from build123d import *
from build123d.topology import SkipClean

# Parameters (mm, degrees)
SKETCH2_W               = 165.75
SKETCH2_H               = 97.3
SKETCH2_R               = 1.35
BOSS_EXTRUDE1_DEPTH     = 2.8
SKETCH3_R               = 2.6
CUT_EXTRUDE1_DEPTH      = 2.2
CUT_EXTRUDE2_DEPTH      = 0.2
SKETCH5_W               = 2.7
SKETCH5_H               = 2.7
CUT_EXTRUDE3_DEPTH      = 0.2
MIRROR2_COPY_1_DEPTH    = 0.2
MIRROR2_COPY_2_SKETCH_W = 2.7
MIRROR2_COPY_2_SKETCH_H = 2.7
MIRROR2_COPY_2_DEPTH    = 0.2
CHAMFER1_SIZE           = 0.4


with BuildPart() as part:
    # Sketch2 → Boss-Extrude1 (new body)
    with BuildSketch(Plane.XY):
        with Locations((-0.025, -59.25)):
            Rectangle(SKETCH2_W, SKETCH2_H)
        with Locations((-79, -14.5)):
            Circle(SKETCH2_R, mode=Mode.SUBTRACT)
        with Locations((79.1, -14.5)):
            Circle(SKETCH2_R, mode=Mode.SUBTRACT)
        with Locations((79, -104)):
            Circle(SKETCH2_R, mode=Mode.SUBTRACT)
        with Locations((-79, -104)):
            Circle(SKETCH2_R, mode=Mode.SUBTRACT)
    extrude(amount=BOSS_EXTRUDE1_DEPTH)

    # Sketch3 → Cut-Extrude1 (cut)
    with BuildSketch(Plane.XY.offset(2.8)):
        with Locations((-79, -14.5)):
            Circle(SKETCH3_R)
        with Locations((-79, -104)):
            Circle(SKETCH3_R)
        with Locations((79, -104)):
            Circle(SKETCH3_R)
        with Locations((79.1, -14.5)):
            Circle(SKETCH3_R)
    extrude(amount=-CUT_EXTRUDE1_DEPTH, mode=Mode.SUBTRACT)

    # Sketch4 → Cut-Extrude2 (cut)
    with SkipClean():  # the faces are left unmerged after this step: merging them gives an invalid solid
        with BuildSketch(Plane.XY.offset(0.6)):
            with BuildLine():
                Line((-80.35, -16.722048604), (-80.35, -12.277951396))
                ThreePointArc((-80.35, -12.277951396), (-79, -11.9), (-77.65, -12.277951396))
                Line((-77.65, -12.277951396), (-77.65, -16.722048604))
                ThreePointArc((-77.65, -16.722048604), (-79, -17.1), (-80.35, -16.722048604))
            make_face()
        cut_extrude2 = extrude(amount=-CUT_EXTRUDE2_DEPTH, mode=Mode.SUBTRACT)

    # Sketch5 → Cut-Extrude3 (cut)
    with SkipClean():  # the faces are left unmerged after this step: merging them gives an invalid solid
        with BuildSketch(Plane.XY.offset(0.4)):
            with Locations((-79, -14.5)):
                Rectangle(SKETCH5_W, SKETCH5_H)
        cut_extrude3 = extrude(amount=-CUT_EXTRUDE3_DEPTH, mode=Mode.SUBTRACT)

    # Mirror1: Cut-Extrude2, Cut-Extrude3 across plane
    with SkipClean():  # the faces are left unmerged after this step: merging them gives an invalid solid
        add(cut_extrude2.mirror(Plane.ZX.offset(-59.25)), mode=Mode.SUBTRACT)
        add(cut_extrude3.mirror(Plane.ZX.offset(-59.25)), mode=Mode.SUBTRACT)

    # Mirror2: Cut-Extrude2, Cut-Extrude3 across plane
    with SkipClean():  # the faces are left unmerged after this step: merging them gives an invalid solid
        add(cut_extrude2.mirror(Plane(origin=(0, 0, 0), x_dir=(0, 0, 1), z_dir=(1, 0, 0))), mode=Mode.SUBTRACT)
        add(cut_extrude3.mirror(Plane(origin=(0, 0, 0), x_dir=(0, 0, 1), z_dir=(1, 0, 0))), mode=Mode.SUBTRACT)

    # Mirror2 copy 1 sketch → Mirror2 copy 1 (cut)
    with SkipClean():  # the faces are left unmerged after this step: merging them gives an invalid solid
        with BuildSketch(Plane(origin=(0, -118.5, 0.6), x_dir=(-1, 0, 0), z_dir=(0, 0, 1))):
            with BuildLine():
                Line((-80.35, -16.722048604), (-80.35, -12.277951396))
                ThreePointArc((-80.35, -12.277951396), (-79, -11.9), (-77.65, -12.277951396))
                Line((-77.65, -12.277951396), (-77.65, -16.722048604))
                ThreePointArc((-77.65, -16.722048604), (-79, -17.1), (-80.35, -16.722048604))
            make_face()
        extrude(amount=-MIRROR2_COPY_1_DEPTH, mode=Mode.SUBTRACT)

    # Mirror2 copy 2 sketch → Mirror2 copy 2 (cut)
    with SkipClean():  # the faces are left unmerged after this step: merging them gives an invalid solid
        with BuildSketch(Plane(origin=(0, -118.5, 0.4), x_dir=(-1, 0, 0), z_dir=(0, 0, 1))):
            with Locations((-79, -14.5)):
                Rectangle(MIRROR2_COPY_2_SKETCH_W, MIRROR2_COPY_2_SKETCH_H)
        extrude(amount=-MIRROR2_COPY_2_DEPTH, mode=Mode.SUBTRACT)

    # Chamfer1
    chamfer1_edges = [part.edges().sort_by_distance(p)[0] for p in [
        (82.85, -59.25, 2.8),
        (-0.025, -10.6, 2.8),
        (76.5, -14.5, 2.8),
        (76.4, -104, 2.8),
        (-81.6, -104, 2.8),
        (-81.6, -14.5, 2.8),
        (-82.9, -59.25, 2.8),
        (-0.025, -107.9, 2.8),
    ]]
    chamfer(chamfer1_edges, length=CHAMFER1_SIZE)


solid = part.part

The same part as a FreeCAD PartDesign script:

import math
import FreeCAD as App
import Part
import Sketcher

V = App.Vector
Q = App.Units.Quantity


def edges_at(feature, points):
    """Names of the edges that pass closest to the given points."""
    edges = feature.Shape.Edges
    near = lambda p: min(range(len(edges)), key=lambda i: edges[i].distToShape(Part.Vertex(*p))[0])
    return sorted({f"Edge{near(p) + 1}" for p in points})

doc = App.newDocument("Part")
params = doc.addObject("Spreadsheet::Sheet", "Params")
for row, (alias, value) in enumerate([
    ("sketch1_diameter", "2.7 mm"),
    ("sketch1_height", "97.3 mm"),
    ("sketch1_width", "165.75 mm"),
    ("pad1_length", "2.8 mm"),
    ("sketch2_diameter", "5.2 mm"),
    ("pocket1_length", "2.2 mm"),
    ("sketch3_radius", "2.6 mm"),
    ("pocket2_length", "0.2 mm"),
    ("sketch4_width", "2.7 mm"),
    ("pocket3_length", "0.2 mm"),
    ("sketch5_radius", "2.6 mm"),
    ("pocket4_length", "0.2 mm"),
    ("sketch6_width", "2.7 mm"),
    ("pocket5_length", "0.2 mm"),
    ("chamfer_size", "0.4 mm"),
], start=1):
    params.set(f"A{row}", alias)
    params.set(f"B{row}", "=" + value)
    params.setAlias(f"B{row}", alias)

body = doc.addObject("PartDesign::Body", "Body")

# Sketch on XY plane
sketch1 = body.newObject("Sketcher::SketchObject", "Sketch")
sketch1.AttachmentSupport = (doc.getObject("XY_Plane"), [""])
sketch1.MapMode = "FlatFace"
sketch1.addGeometry([
    Part.LineSegment(V(-82.9, -10.6, 0), V(-82.9, -107.9, 0)),  # 0
    Part.LineSegment(V(-82.9, -107.9, 0), V(82.8, -107.9, 0)),  # 1
    Part.LineSegment(V(82.8, -107.9, 0), V(82.8, -10.6, 0)),  # 2
    Part.LineSegment(V(82.8, -10.6, 0), V(-82.9, -10.6, 0)),  # 3
    Part.Circle(V(-79, -104, 0), V(0, 0, 1), 1.4),  # 4
    Part.Circle(V(79, -104, 0), V(0, 0, 1), 1.4),  # 5
    Part.Circle(V(-79, -14.5, 0), V(0, 0, 1), 1.4),  # 6
    Part.Circle(V(79.1, -14.5, 0), V(0, 0, 1), 1.4),  # 7
], False)
sketch1.addConstraint([
    Sketcher.Constraint("Coincident", 0, 2, 1, 1),
    Sketcher.Constraint("Coincident", 1, 2, 2, 1),
    Sketcher.Constraint("Coincident", 2, 2, 3, 1),
    Sketcher.Constraint("Coincident", 3, 2, 0, 1),
    Sketcher.Constraint("Vertical", 0),
    Sketcher.Constraint("Horizontal", 1),
    Sketcher.Constraint("Vertical", 2),
    Sketcher.Constraint("Horizontal", 3),
    Sketcher.Constraint("Equal", 4, 5),
    Sketcher.Constraint("Equal", 5, 6),
    Sketcher.Constraint("Equal", 6, 7),
    Sketcher.Constraint("Symmetric", 4, 3, 5, 3, -2),
    Sketcher.Constraint("Horizontal", 6, 3, 7, 3),
    Sketcher.Constraint("Vertical", 4, 3, 6, 3),
    Sketcher.Constraint("Diameter", 4, Q("2.7 mm")),
    Sketcher.Constraint("DistanceY", 0, 2, 0, 1, Q("97.3 mm")),
    Sketcher.Constraint("DistanceX", 4, 3, -1, 1, Q("79 mm")),
    Sketcher.Constraint("DistanceY", 4, 3, -1, 1, Q("104 mm")),
    Sketcher.Constraint("DistanceX", 0, 2, 7, 3, Q("162 mm")),
    Sketcher.Constraint("DistanceX", 1, 1, 1, 2, Q("165.75 mm")),
    Sketcher.Constraint("DistanceY", 6, 3, -1, 1, Q("14.5 mm")),
    Sketcher.Constraint("DistanceX", -1, 1, 7, 3, Q("79.1 mm")),
    Sketcher.Constraint("DistanceY", 0, 2, -1, 1, Q("107.9 mm")),
])
sketch1.setExpression("Constraints[14]", "Params.sketch1_diameter")
sketch1.setExpression("Constraints[15]", "Params.sketch1_height")
sketch1.setExpression("Constraints[19]", "Params.sketch1_width")
pad1 = body.newObject("PartDesign::Pad", "Pad")
pad1.Profile = sketch1
pad1.setExpression("Length", "Params.pad1_length")

# Sketch on XY plane
sketch2 = body.newObject("Sketcher::SketchObject", "Sketch001")
sketch2.AttachmentSupport = (doc.getObject("XY_Plane"), [""])
sketch2.MapMode = "FlatFace"
sketch2.AttachmentOffset = App.Placement(V(0, 0, 2.8), App.Rotation())
sketch2.addGeometry([
    Part.Circle(V(-79, -14.5, 0), V(0, 0, 1), 2.6),
    Part.Circle(V(-79, -104, 0), V(0, 0, 1), 2.6),
    Part.Circle(V(79, -104, 0), V(0, 0, 1), 2.6),
    Part.Circle(V(79.1, -14.5, 0), V(0, 0, 1), 2.6),
], False)
sketch2.addConstraint([
    Sketcher.Constraint("Equal", 0, 1),
    Sketcher.Constraint("Equal", 1, 2),
    Sketcher.Constraint("Equal", 2, 3),
    Sketcher.Constraint("Symmetric", 1, 3, 2, 3, -2),
    Sketcher.Constraint("Horizontal", 0, 3, 3, 3),
    Sketcher.Constraint("Vertical", 0, 3, 1, 3),
    Sketcher.Constraint("Diameter", 0, Q("5.2 mm")),
    Sketcher.Constraint("DistanceX", 0, 3, -1, 1, Q("79 mm")),
    Sketcher.Constraint("DistanceY", 1, 3, -1, 1, Q("104 mm")),
    Sketcher.Constraint("DistanceY", 0, 3, -1, 1, Q("14.5 mm")),
    Sketcher.Constraint("DistanceX", -1, 1, 3, 3, Q("79.1 mm")),
])
sketch2.setExpression("Constraints[6]", "Params.sketch2_diameter")
pocket1 = body.newObject("PartDesign::Pocket", "Pocket")
pocket1.Profile = sketch2
pocket1.setExpression("Length", "Params.pocket1_length")

# Sketch on XY plane
sketch3 = body.newObject("Sketcher::SketchObject", "Sketch002")
sketch3.AttachmentSupport = (doc.getObject("XY_Plane"), [""])
sketch3.MapMode = "FlatFace"
sketch3.AttachmentOffset = App.Placement(V(0, 0, 0.6), App.Rotation())
sketch3.addGeometry([
    Part.LineSegment(V(-80.3, -12.3, 0), V(-80.3, -16.7, 0)),
    Part.ArcOfCircle(Part.Circle(V(-79, -14.5, 0), V(0, 0, 1), 2.6), math.radians(-121), math.radians(-59)),
    Part.LineSegment(V(-77.7, -16.7, 0), V(-77.7, -12.3, 0)),
    Part.ArcOfCircle(Part.Circle(V(-79, -14.5, 0), V(0, 0, 1), 2.6), math.radians(59), math.radians(121)),
], False)
sketch3.addConstraint([
    Sketcher.Constraint("Coincident", 0, 2, 1, 1),
    Sketcher.Constraint("Coincident", 1, 2, 2, 1),
    Sketcher.Constraint("Coincident", 2, 2, 3, 1),
    Sketcher.Constraint("Coincident", 3, 2, 0, 1),
    Sketcher.Constraint("Vertical", 0),
    Sketcher.Constraint("Vertical", 2),
    Sketcher.Constraint("Coincident", 3, 3, 1, 3),
    Sketcher.Constraint("Equal", 1, 3),
    Sketcher.Constraint("Horizontal", 0, 2, 1, 2),
    Sketcher.Constraint("Radius", 1, Q("2.6 mm")),
    Sketcher.Constraint("DistanceX", 1, 3, -1, 1, Q("79 mm")),
    Sketcher.Constraint("DistanceY", 1, 3, -1, 1, Q("14.5 mm")),
    Sketcher.Constraint("DistanceX", 0, 2, 1, 2, Q("2.7 mm")),
])
sketch3.setExpression("Constraints[9]", "Params.sketch3_radius")
pocket2 = body.newObject("PartDesign::Pocket", "Pocket001")
pocket2.Profile = sketch3
pocket2.setExpression("Length", "Params.pocket2_length")

# Sketch on XY plane
sketch4 = body.newObject("Sketcher::SketchObject", "Sketch003")
sketch4.AttachmentSupport = (doc.getObject("XY_Plane"), [""])
sketch4.MapMode = "FlatFace"
sketch4.AttachmentOffset = App.Placement(V(0, 0, 0.4), App.Rotation())
sketch4.addGeometry([
    Part.LineSegment(V(-80.3, -13.2, 0), V(-80.3, -15.8, 0)),
    Part.LineSegment(V(-80.3, -15.8, 0), V(-77.7, -15.8, 0)),
    Part.LineSegment(V(-77.7, -15.8, 0), V(-77.7, -13.2, 0)),
    Part.LineSegment(V(-77.7, -13.2, 0), V(-80.3, -13.2, 0)),
], False)
sketch4.addConstraint([
    Sketcher.Constraint("Coincident", 0, 2, 1, 1),
    Sketcher.Constraint("Coincident", 1, 2, 2, 1),
    Sketcher.Constraint("Coincident", 2, 2, 3, 1),
    Sketcher.Constraint("Coincident", 3, 2, 0, 1),
    Sketcher.Constraint("Vertical", 0),
    Sketcher.Constraint("Horizontal", 1),
    Sketcher.Constraint("Vertical", 2),
    Sketcher.Constraint("Horizontal", 3),
    Sketcher.Constraint("Equal", 3, 0),
    Sketcher.Constraint("DistanceX", 1, 1, 1, 2, Q("2.7 mm")),
    Sketcher.Constraint("DistanceX", 0, 2, -1, 1, Q("80.35 mm")),
    Sketcher.Constraint("DistanceY", 0, 2, -1, 1, Q("15.85 mm")),
])
sketch4.setExpression("Constraints[9]", "Params.sketch4_width")
pocket3 = body.newObject("PartDesign::Pocket", "Pocket002")
pocket3.Profile = sketch4
pocket3.setExpression("Length", "Params.pocket3_length")
doc.recompute()

datumplane = body.newObject("PartDesign::Plane", "DatumPlane")
datumplane.AttachmentSupport = (doc.getObject("XZ_Plane"), [""])
datumplane.MapMode = "FlatFace"
datumplane.AttachmentOffset = App.Placement(V(0, 0, 59.25), App.Rotation())
mirrored = body.newObject("PartDesign::Mirrored", "Mirrored")
mirrored.Originals = [pocket2, pocket3]
mirrored.MirrorPlane = (datumplane, [""])
body.Tip = mirrored
doc.recompute()

mirrored2 = body.newObject("PartDesign::Mirrored", "Mirrored001")
mirrored2.Originals = [pocket2, pocket3]
mirrored2.MirrorPlane = (doc.getObject("YZ_Plane"), [""])
body.Tip = mirrored2

# Sketch on XY plane
sketch5 = body.newObject("Sketcher::SketchObject", "Sketch004")
sketch5.AttachmentSupport = (doc.getObject("XY_Plane"), [""])
sketch5.MapMode = "FlatFace"
sketch5.AttachmentOffset = App.Placement(V(0, 0, 0.6), App.Rotation())
sketch5.addGeometry([
    Part.LineSegment(V(80.3, -106.2, 0), V(80.3, -101.8, 0)),
    Part.ArcOfCircle(Part.Circle(V(79, -104, 0), V(0, 0, 1), 2.6), math.radians(59), math.radians(121)),
    Part.LineSegment(V(77.7, -101.8, 0), V(77.7, -106.2, 0)),
    Part.ArcOfCircle(Part.Circle(V(79, -104, 0), V(0, 0, 1), 2.6), math.radians(-121), math.radians(-59)),
], False)
sketch5.addConstraint([
    Sketcher.Constraint("Coincident", 0, 2, 1, 1),
    Sketcher.Constraint("Coincident", 1, 2, 2, 1),
    Sketcher.Constraint("Coincident", 2, 2, 3, 1),
    Sketcher.Constraint("Coincident", 3, 2, 0, 1),
    Sketcher.Constraint("Vertical", 0),
    Sketcher.Constraint("Vertical", 2),
    Sketcher.Constraint("Coincident", 3, 3, 1, 3),
    Sketcher.Constraint("Equal", 1, 3),
    Sketcher.Constraint("Horizontal", 0, 2, 1, 2),
    Sketcher.Constraint("Radius", 1, Q("2.6 mm")),
    Sketcher.Constraint("DistanceX", -1, 1, 1, 3, Q("79 mm")),
    Sketcher.Constraint("DistanceY", 1, 3, -1, 1, Q("104 mm")),
    Sketcher.Constraint("DistanceX", 1, 2, 0, 2, Q("2.7 mm")),
])
sketch5.setExpression("Constraints[9]", "Params.sketch5_radius")
pocket4 = body.newObject("PartDesign::Pocket", "Pocket003")
pocket4.Profile = sketch5
pocket4.setExpression("Length", "Params.pocket4_length")

# Sketch on XY plane
sketch6 = body.newObject("Sketcher::SketchObject", "Sketch005")
sketch6.AttachmentSupport = (doc.getObject("XY_Plane"), [""])
sketch6.MapMode = "FlatFace"
sketch6.AttachmentOffset = App.Placement(V(0, 0, 0.4), App.Rotation())
sketch6.addGeometry([
    Part.LineSegment(V(80.3, -105.3, 0), V(80.3, -102.7, 0)),
    Part.LineSegment(V(80.3, -102.7, 0), V(77.7, -102.7, 0)),
    Part.LineSegment(V(77.7, -102.7, 0), V(77.7, -105.3, 0)),
    Part.LineSegment(V(77.7, -105.3, 0), V(80.3, -105.3, 0)),
], False)
sketch6.addConstraint([
    Sketcher.Constraint("Coincident", 0, 2, 1, 1),
    Sketcher.Constraint("Coincident", 1, 2, 2, 1),
    Sketcher.Constraint("Coincident", 2, 2, 3, 1),
    Sketcher.Constraint("Coincident", 3, 2, 0, 1),
    Sketcher.Constraint("Vertical", 0),
    Sketcher.Constraint("Horizontal", 1),
    Sketcher.Constraint("Vertical", 2),
    Sketcher.Constraint("Horizontal", 3),
    Sketcher.Constraint("Equal", 3, 0),
    Sketcher.Constraint("DistanceX", 1, 2, 1, 1, Q("2.7 mm")),
    Sketcher.Constraint("DistanceX", -1, 1, 0, 2, Q("80.35 mm")),
    Sketcher.Constraint("DistanceY", 0, 2, -1, 1, Q("102.65 mm")),
])
sketch6.setExpression("Constraints[9]", "Params.sketch6_width")
pocket5 = body.newObject("PartDesign::Pocket", "Pocket004")
pocket5.Profile = sketch6
pocket5.setExpression("Length", "Params.pocket5_length")
doc.recompute()

chamfer = body.newObject("PartDesign::Chamfer", "Chamfer")
chamfer.Base = (pocket5, edges_at(pocket5, [
    (82.85, -59.25, 2.8),
    (-0.025, -10.6, 2.8),
    (76.5, -14.5, 2.8),
    (76.4, -104, 2.8),
    (-81.6, -104, 2.8),
    (-81.6, -14.5, 2.8),
    (-82.9, -59.25, 2.8),
    (-0.025, -107.9, 2.8),
]))
chamfer.setExpression("Size", "Params.chamfer_size")

doc.recompute()
